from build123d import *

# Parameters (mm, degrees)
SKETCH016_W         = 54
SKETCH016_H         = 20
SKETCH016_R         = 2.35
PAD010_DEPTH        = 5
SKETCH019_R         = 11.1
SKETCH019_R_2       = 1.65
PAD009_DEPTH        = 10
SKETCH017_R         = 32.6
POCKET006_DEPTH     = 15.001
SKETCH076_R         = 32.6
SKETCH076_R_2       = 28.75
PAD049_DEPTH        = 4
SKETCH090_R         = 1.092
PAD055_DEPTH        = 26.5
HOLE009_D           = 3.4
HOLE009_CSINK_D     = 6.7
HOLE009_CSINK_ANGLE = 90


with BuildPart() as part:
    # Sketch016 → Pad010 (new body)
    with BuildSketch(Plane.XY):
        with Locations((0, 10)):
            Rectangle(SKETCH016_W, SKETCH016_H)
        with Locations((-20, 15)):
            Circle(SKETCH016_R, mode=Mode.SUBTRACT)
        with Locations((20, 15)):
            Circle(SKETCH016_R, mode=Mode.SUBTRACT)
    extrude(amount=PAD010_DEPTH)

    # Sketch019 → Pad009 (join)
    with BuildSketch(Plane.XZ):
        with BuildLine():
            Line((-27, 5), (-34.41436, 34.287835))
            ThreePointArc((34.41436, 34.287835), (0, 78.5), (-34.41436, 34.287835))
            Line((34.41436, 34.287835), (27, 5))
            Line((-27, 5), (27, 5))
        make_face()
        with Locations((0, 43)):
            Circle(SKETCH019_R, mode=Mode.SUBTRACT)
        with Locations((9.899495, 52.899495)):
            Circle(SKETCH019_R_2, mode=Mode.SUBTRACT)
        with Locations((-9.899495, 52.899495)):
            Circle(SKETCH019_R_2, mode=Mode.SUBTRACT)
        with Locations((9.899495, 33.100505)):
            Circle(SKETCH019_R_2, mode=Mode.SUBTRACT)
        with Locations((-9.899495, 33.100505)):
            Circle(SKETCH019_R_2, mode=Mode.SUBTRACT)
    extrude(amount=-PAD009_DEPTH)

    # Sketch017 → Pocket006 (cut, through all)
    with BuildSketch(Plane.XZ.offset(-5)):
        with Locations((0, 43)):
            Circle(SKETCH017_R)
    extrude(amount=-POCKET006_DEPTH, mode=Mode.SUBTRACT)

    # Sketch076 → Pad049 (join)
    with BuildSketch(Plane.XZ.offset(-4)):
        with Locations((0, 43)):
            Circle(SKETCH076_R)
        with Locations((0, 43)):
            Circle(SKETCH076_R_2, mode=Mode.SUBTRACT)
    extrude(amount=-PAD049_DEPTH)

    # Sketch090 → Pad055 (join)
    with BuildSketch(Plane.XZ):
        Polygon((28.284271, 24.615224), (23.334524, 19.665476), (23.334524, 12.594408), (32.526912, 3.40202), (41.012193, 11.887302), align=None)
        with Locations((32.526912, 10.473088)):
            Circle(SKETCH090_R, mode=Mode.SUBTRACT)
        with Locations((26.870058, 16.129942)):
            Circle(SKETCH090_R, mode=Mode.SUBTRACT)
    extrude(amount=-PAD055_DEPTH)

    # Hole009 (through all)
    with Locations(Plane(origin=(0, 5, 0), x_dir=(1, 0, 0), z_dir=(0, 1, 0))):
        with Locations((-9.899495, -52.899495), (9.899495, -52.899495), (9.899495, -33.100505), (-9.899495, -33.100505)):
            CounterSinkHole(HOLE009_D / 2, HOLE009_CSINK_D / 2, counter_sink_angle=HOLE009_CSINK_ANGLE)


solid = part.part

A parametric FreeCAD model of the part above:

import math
import FreeCAD as App
import Part
import Sketcher
Q = App.Units.Quantity

doc = App.newDocument("Part")
body = doc.addObject("PartDesign::Body", "Body")

sketch1 = doc.addObject("Sketcher::SketchObject", "Sketch")
body.addObject(sketch1)
sketch1.AttachmentSupport = (doc.XY_Plane, [""])
sketch1.MapMode = "FlatFace"
sketch1.addGeometry(Part.LineSegment(App.Vector(-27, 20, 0), App.Vector(-27, 0, 0)), False)
sketch1.addGeometry(Part.LineSegment(App.Vector(-27, 0, 0), App.Vector(27, 0, 0)), False)
sketch1.addGeometry(Part.LineSegment(App.Vector(27, 0, 0), App.Vector(27, 20, 0)), False)
sketch1.addGeometry(Part.LineSegment(App.Vector(27, 20, 0), App.Vector(-27, 20, 0)), False)
sketch1.addGeometry(Part.Circle(App.Vector(-20, 15, 0), App.Vector(0, 0, 1), 2.35), False)
sketch1.addGeometry(Part.Circle(App.Vector(20, 15, 0), App.Vector(0, 0, 1), 2.35), False)
sketch1.addConstraint(Sketcher.Constraint("Coincident", 0, 2, 1, 1))
sketch1.addConstraint(Sketcher.Constraint("Coincident", 1, 2, 2, 1))
sketch1.addConstraint(Sketcher.Constraint("Coincident", 2, 2, 3, 1))
sketch1.addConstraint(Sketcher.Constraint("Coincident", 3, 2, 0, 1))
sketch1.addConstraint(Sketcher.Constraint("Vertical", 0))
sketch1.addConstraint(Sketcher.Constraint("Horizontal", 1))
sketch1.addConstraint(Sketcher.Constraint("Vertical", 2))
sketch1.addConstraint(Sketcher.Constraint("Horizontal", 3))
sketch1.addConstraint(Sketcher.Constraint("Equal", 4, 5))
sketch1.addConstraint(Sketcher.Constraint("Symmetric", 0, 2, 1, 2, -1, 1))
sketch1.addConstraint(Sketcher.Constraint("Symmetric", 4, 3, 5, 3, -2))
sketch1.addConstraint(Sketcher.Constraint("Diameter", 4, Q("4.7 mm")))
sketch1.addConstraint(Sketcher.Constraint("DistanceX", 1, 1, 1, 2, Q("54 mm")))
sketch1.addConstraint(Sketcher.Constraint("DistanceY", 0, 2, 0, 1, Q("20 mm")))
sketch1.addConstraint(Sketcher.Constraint("DistanceX", 4, 3, -1, 1, Q("20 mm")))
sketch1.addConstraint(Sketcher.Constraint("DistanceY", -1, 1, 4, 3, Q("15 mm")))
pad1 = doc.addObject("PartDesign::Pad", "Pad")
body.addObject(pad1)
pad1.Profile = sketch1
pad1.Length = 5

sketch2 = doc.addObject("Sketcher::SketchObject", "Sketch001")
body.addObject(sketch2)
sketch2.AttachmentSupport = (doc.XZ_Plane, [""])
sketch2.MapMode = "FlatFace"
sketch2.addGeometry(Part.LineSegment(App.Vector(-34.41436, 34.287835, 0), App.Vector(-27, 5, 0)), False)
sketch2.addGeometry(Part.LineSegment(App.Vector(-27, 5, 0), App.Vector(27, 5, 0)), False)
sketch2.addGeometry(Part.LineSegment(App.Vector(27, 5, 0), App.Vector(34.41436, 34.287835, 0)), False)
sketch2.addGeometry(Part.ArcOfCircle(Part.Circle(App.Vector(0, 43, 0), App.Vector(0, 0, 1), 35.5), math.radians(-14.206248), math.radians(194.206248)), False)
sketch2.addGeometry(Part.Circle(App.Vector(9.899495, 33.100505, 0), App.Vector(0, 0, 1), 1.65), False)
sketch2.addGeometry(Part.Circle(App.Vector(-9.899495, 33.100505, 0), App.Vector(0, 0, 1), 1.65), False)
sketch2.addGeometry(Part.Circle(App.Vector(9.899495, 52.899495, 0), App.Vector(0, 0, 1), 1.65), False)
sketch2.addGeometry(Part.Circle(App.Vector(0, 43, 0), App.Vector(0, 0, 1), 11.1), False)
sketch2.addGeometry(Part.Circle(App.Vector(-9.899495, 52.899495, 0), App.Vector(0, 0, 1), 1.65), False)
sketch2.addConstraint(Sketcher.Constraint("Coincident", 0, 2, 1, 1))
sketch2.addConstraint(Sketcher.Constraint("Coincident", 1, 2, 2, 1))
sketch2.addConstraint(Sketcher.Constraint("Tangent", 2, 2, 3, 1))
sketch2.addConstraint(Sketcher.Constraint("Tangent", 3, 2, 0, 1))
sketch2.addConstraint(Sketcher.Constraint("Horizontal", 1))
sketch2.addConstraint(Sketcher.Constraint("Coincident", 7, 3, 3, 3))
sketch2.addConstraint(Sketcher.Constraint("Equal", 4, 5))
sketch2.addConstraint(Sketcher.Constraint("Equal", 5, 6))
sketch2.addConstraint(Sketcher.Constraint("Equal", 6, 8))
sketch2.addConstraint(Sketcher.Constraint("Symmetric", 4, 3, 5, 3, -2))
sketch2.addConstraint(Sketcher.Constraint("Symmetric", 6, 3, 8, 3, -2))
sketch2.addConstraint(Sketcher.Constraint("Symmetric", 2, 2, 3, 2, -2))
sketch2.addConstraint(Sketcher.Constraint("Vertical", 4, 3, 6, 3))
sketch2.addConstraint(Sketcher.Constraint("Diameter", 4, Q("3.3 mm")))
sketch2.addConstraint(Sketcher.Constraint("Diameter", 7, Q("22.2 mm")))
sketch2.addConstraint(Sketcher.Constraint("Radius", 3, Q("35.5 mm")))
sketch2.addConstraint(Sketcher.Constraint("DistanceX", 1, 1, 1, 2, Q("54 mm")))
sketch2.addConstraint(Sketcher.Constraint("DistanceY", -1, 1, 3, 3, Q("43 mm")))
sketch2.addConstraint(Sketcher.Constraint("DistanceY", -1, 1, 0, 2, Q("5 mm")))
sketch2.addConstraint(Sketcher.Constraint("DistanceX", 5, 3, 4, 3, Q("19.79899 mm")))
sketch2.addConstraint(Sketcher.Constraint("DistanceY", 4, 3, 6, 3, Q("19.79899 mm")))
sketch2.addConstraint(Sketcher.Constraint("DistanceY", 4, 3, 2, 2, Q("1.18733 mm")))
pad2 = doc.addObject("PartDesign::Pad", "Pad001")
body.addObject(pad2)
pad2.Profile = sketch2
pad2.Length = 10
pad2.Reversed = True

sketch3 = doc.addObject("Sketcher::SketchObject", "Sketch002")
body.addObject(sketch3)
sketch3.AttachmentSupport = (doc.XZ_Plane, [""])
sketch3.MapMode = "FlatFace"
sketch3.AttachmentOffset = App.Placement(App.Vector(0, 0, -5), App.Rotation())
sketch3.addGeometry(Part.Circle(App.Vector(0, 43, 0), App.Vector(0, 0, 1), 32.6), False)
sketch3.addConstraint(Sketcher.Constraint("PointOnObject", 0, 3, -2))
sketch3.addConstraint(Sketcher.Constraint("Diameter", 0, Q("65.2 mm")))
sketch3.addConstraint(Sketcher.Constraint("DistanceY", -1, 1, 0, 3, Q("43 mm")))
pocket1 = doc.addObject("PartDesign::Pocket", "Pocket")
body.addObject(pocket1)
pocket1.Profile = sketch3
pocket1.Type = "ThroughAll"

sketch4 = doc.addObject("Sketcher::SketchObject", "Sketch003")
body.addObject(sketch4)
sketch4.AttachmentSupport = (doc.XZ_Plane, [""])
sketch4.MapMode = "FlatFace"
sketch4.AttachmentOffset = App.Placement(App.Vector(0, 0, -4), App.Rotation())
sketch4.addGeometry(Part.Circle(App.Vector(0, 43, 0), App.Vector(0, 0, 1), 32.6), False)
sketch4.addGeometry(Part.Circle(App.Vector(0, 43, 0), App.Vector(0, 0, 1), 28.75), False)
sketch4.addConstraint(Sketcher.Constraint("Coincident", 1, 3, 0, 3))
sketch4.addConstraint(Sketcher.Constraint("PointOnObject", 0, 3, -2))
sketch4.addConstraint(Sketcher.Constraint("Diameter", 0, Q("65.2 mm")))
sketch4.addConstraint(Sketcher.Constraint("Diameter", 1, Q("57.5 mm")))
sketch4.addConstraint(Sketcher.Constraint("DistanceY", -1, 1, 0, 3, Q("43 mm")))
pad3 = doc.addObject("PartDesign::Pad", "Pad002")
body.addObject(pad3)
pad3.Profile = sketch4
pad3.Length = 4
pad3.Reversed = True

sketch5 = doc.addObject("Sketcher::SketchObject", "Sketch004")
body.addObject(sketch5)
sketch5.AttachmentSupport = (doc.XZ_Plane, [""])
sketch5.MapMode = "FlatFace"
sketch5.addGeometry(Part.LineSegment(App.Vector(28.284271, 24.615224, 0), App.Vector(23.334524, 19.665476, 0)), False)
sketch5.addGeometry(Part.LineSegment(App.Vector(23.334524, 19.665476, 0), App.Vector(23.334524, 12.594408, 0)), False)
sketch5.addGeometry(Part.LineSegment(App.Vector(23.334524, 12.594408, 0), App.Vector(32.526912, 3.40202, 0)), False)
sketch5.addGeometry(Part.LineSegment(App.Vector(32.526912, 3.40202, 0), App.Vector(41.012193, 11.887302, 0)), False)
sketch5.addGeometry(Part.LineSegment(App.Vector(41.012193, 11.887302, 0), App.Vector(28.284271, 24.615224, 0)), False)
sketch5.addGeometry(Part.Circle(App.Vector(32.526912, 10.473088, 0), App.Vector(0, 0, 1), 1.092), False)
sketch5.addGeometry(Part.Circle(App.Vector(26.870058, 16.129942, 0), App.Vector(0, 0, 1), 1.092), False)
sketch5.addConstraint(Sketcher.Constraint("Coincident", 0, 2, 1, 1))
sketch5.addConstraint(Sketcher.Constraint("Coincident", 1, 2, 2, 1))
sketch5.addConstraint(Sketcher.Constraint("Coincident", 2, 2, 3, 1))
sketch5.addConstraint(Sketcher.Constraint("Coincident", 3, 2, 4, 1))
sketch5.addConstraint(Sketcher.Constraint("Coincident", 4, 2, 0, 1))
sketch5.addConstraint(Sketcher.Constraint("Vertical", 1))
sketch5.addConstraint(Sketcher.Constraint("Equal", 5, 6))
sketch5.addConstraint(Sketcher.Constraint("Perpendicular", 0, 2))
sketch5.addConstraint(Sketcher.Constraint("Perpendicular", 2, 3))
sketch5.addConstraint(Sketcher.Constraint("Perpendicular", 3, 4))
sketch5.addConstraint(Sketcher.Constraint("Vertical", 5, 3, 2, 2))
sketch5.addConstraint(Sketcher.Constraint("Angle", 0, Q("-134.999994 deg")))
sketch5.addConstraint(Sketcher.Constraint("Distance", 0, Q("7 mm")))
sketch5.addConstraint(Sketcher.Constraint("Distance", 2, Q("13 mm")))
sketch5.addConstraint(Sketcher.Constraint("Distance", 3, Q("12 mm")))
sketch5.addConstraint(Sketcher.Constraint("Diameter", 5, Q("2.184 mm")))
sketch5.addConstraint(Sketcher.Constraint("DistanceY", -1, 1, 5, 3, Q("10.473088 mm")))
sketch5.addConstraint(Sketcher.Constraint("DistanceX", -1, 1, 6, 3, Q("26.870058 mm")))
sketch5.addConstraint(Sketcher.Constraint("DistanceY", -1, 1, 6, 3, Q("16.129942 mm")))
sketch5.addConstraint(Sketcher.Constraint("DistanceY", -1, 1, 2, 2, Q("3.40202 mm")))
sketch5.addConstraint(Sketcher.Constraint("DistanceX", -1, 1, 4, 2, Q("28.284271 mm")))
pad4 = doc.addObject("PartDesign::Pad", "Pad003")
body.addObject(pad4)
pad4.Profile = sketch5
pad4.Length = 26.5
pad4.Reversed = True

sketch6 = doc.addObject("Sketcher::SketchObject", "Sketch005")
body.addObject(sketch6)
sketch6.AttachmentSupport = (doc.XZ_Plane, [""])
sketch6.MapMode = "FlatFace"
sketch6.AttachmentOffset = App.Placement(App.Vector(0, 0, -5), App.Rotation())
sketch6.addGeometry(Part.Circle(App.Vector(-9.899495, 52.899495, 0), App.Vector(0, 0, 1), 1.7), False)
sketch6.addGeometry(Part.Circle(App.Vector(9.899495, 52.899495, 0), App.Vector(0, 0, 1), 1.7), False)
sketch6.addGeometry(Part.Circle(App.Vector(9.899495, 33.100505, 0), App.Vector(0, 0, 1), 1.7), False)
sketch6.addGeometry(Part.Circle(App.Vector(-9.899495, 33.100505, 0), App.Vector(0, 0, 1), 1.7), False)
sketch6.addConstraint(Sketcher.Constraint("Equal", 0, 1))
sketch6.addConstraint(Sketcher.Constraint("Equal", 1, 2))
sketch6.addConstraint(Sketcher.Constraint("Equal", 2, 3))
sketch6.addConstraint(Sketcher.Constraint("Symmetric", 0, 3, 1, 3, -2))
sketch6.addConstraint(Sketcher.Constraint("Symmetric", 2, 3, 3, 3, -2))
sketch6.addConstraint(Sketcher.Constraint("Vertical", 1, 3, 2, 3))
sketch6.addConstraint(Sketcher.Constraint("Diameter", 0, Q("3.4 mm")))
sketch6.addConstraint(Sketcher.Constraint("DistanceX", 0, 3, 1, 3, Q("19.79899 mm")))
sketch6.addConstraint(Sketcher.Constraint("DistanceY", 2, 3, 1, 3, Q("19.79899 mm")))
sketch6.addConstraint(Sketcher.Constraint("DistanceY", -1, 1, 0, 3, Q("52.899495 mm")))
doc.recompute()
hole = doc.addObject("PartDesign::Hole", "Hole")
body.addObject(hole)
hole.Profile = sketch6
hole.ThreadType = "None"
hole.Diameter = 3.4
hole.DepthType = "ThroughAll"
hole.HoleCutType = "Countersink"
hole.HoleCutDiameter = 6.7
hole.HoleCutCountersinkAngle = 90
hole.Reversed = True

doc.recompute()
